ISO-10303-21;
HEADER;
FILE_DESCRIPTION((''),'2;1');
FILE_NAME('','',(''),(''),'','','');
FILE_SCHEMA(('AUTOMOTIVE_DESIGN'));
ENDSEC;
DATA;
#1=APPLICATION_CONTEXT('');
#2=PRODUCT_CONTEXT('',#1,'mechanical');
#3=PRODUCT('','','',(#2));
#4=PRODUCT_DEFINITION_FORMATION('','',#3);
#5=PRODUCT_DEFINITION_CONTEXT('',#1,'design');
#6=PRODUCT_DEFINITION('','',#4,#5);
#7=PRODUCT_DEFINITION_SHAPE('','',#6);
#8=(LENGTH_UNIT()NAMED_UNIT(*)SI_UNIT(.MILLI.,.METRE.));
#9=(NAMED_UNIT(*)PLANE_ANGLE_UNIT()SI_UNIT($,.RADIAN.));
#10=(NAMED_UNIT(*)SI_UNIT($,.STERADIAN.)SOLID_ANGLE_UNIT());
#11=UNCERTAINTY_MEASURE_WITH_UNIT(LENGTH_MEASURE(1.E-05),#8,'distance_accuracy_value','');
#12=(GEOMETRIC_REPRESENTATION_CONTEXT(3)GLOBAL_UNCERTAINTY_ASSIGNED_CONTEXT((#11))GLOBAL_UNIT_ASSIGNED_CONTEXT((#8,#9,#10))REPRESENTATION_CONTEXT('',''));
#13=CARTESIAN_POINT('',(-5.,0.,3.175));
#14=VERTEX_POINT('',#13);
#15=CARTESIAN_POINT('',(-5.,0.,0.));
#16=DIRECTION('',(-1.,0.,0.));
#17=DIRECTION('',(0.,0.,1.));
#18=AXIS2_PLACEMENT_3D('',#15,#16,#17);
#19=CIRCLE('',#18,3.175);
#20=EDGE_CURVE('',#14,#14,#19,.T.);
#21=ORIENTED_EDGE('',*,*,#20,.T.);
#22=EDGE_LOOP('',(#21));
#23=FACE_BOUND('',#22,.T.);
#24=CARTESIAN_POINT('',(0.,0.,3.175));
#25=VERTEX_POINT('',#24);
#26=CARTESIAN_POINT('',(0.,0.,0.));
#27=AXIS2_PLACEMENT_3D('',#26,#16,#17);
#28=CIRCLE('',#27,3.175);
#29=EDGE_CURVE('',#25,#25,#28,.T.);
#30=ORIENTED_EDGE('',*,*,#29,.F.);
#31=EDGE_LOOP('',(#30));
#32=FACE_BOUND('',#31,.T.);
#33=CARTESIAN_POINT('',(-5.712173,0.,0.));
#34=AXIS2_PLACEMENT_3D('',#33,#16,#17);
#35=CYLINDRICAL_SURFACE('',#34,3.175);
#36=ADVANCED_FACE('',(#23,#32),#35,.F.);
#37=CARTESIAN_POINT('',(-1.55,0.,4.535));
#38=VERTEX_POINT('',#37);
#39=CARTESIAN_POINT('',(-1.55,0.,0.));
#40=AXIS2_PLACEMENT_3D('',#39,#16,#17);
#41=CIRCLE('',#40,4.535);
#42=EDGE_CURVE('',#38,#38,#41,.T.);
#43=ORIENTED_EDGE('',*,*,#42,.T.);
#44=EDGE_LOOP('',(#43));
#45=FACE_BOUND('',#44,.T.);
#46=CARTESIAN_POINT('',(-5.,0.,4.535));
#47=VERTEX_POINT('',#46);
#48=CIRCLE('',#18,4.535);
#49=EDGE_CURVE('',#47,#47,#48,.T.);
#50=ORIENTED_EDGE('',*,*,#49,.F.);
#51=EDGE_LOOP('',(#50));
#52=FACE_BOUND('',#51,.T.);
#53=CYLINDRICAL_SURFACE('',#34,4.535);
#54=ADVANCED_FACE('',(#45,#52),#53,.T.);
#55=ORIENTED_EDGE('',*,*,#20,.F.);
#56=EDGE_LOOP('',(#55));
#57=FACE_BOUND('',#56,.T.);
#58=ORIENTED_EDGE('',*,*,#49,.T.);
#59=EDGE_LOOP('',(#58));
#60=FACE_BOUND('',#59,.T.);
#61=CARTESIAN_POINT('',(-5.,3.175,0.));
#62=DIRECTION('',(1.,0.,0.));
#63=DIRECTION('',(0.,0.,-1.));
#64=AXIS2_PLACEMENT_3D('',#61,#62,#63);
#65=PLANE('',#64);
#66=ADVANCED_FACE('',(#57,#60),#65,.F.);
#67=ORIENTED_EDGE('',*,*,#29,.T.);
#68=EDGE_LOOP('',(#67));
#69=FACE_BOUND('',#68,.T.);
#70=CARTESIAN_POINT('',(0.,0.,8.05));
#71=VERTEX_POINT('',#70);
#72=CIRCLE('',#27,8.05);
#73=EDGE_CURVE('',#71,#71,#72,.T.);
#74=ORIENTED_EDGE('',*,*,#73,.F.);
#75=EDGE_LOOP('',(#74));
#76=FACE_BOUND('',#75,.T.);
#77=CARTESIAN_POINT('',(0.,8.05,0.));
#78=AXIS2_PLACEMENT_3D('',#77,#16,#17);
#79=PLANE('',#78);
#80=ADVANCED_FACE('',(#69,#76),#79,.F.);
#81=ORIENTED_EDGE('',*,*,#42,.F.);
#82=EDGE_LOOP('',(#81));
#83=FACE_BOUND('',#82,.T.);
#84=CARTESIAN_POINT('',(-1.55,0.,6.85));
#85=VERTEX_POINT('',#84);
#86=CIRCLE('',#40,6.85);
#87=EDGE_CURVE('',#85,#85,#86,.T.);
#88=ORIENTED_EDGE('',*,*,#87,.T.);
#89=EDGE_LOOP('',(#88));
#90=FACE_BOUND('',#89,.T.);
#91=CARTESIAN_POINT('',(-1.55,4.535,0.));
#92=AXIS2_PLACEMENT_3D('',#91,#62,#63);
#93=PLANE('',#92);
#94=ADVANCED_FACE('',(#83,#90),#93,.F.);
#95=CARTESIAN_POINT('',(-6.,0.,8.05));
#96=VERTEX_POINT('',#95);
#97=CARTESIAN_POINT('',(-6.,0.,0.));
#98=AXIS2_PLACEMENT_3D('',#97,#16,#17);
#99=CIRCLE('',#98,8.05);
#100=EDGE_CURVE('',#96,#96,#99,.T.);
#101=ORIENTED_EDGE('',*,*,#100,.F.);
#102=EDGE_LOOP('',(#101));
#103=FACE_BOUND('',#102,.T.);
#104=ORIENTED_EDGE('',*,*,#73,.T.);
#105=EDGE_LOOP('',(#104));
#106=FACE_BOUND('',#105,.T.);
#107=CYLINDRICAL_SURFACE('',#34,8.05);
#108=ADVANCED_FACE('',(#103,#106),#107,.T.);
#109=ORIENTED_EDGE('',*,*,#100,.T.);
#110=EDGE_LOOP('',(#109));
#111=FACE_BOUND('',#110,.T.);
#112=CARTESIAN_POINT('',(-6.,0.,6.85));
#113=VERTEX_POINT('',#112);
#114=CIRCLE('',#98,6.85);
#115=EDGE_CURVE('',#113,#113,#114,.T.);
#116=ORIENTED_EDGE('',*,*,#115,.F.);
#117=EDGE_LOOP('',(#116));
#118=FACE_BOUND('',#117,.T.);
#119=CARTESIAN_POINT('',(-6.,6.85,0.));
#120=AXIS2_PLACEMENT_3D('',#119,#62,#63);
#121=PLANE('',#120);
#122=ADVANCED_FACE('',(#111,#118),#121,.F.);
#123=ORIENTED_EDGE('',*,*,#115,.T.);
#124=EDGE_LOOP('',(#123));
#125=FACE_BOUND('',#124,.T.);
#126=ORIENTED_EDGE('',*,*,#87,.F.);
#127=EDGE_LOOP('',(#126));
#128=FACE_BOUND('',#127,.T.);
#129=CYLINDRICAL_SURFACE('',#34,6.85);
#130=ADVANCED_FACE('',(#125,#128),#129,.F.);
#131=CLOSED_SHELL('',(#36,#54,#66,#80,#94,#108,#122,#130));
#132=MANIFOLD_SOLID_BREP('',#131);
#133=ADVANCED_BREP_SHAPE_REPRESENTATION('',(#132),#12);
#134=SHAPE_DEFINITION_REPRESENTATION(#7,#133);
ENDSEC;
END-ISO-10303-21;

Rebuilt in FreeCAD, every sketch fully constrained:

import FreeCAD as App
import Part
import Sketcher
Q = App.Units.Quantity


def add_polygon(sketch, points):
    """Adds a closed chain of lines whose ends are joined by coincident constraints."""
    first, n = sketch.GeometryCount, len(points)
    for a, b in zip(points, points[1:] + points[:1]):
        sketch.addGeometry(Part.LineSegment(App.Vector(*a, 0), App.Vector(*b, 0)), False)
    for i in range(n):
        sketch.addConstraint(Sketcher.Constraint("Coincident", first + i, 2, first + (i + 1) % n, 1))

doc = App.newDocument("Part")
body = doc.addObject("PartDesign::Body", "Body")

sketch1 = doc.addObject("Sketcher::SketchObject", "Sketch")
body.addObject(sketch1)
sketch1.AttachmentSupport = (doc.XY_Plane, [""])
sketch1.MapMode = "FlatFace"
add_polygon(sketch1, [(0, 8.05), (-6, 8.05), (-6, 6.85), (-1.55, 6.85), (-1.55, 4.535), (-5, 4.535), (-5, 3.175), (0, 3.175)])
sketch1.addConstraint(Sketcher.Constraint("Horizontal", 0))
sketch1.addConstraint(Sketcher.Constraint("Vertical", 1))
sketch1.addConstraint(Sketcher.Constraint("Horizontal", 2))
sketch1.addConstraint(Sketcher.Constraint("Vertical", 3))
sketch1.addConstraint(Sketcher.Constraint("Horizontal", 4))
sketch1.addConstraint(Sketcher.Constraint("Vertical", 5))
sketch1.addConstraint(Sketcher.Constraint("Horizontal", 6))
sketch1.addConstraint(Sketcher.Constraint("Vertical", 7))
sketch1.addConstraint(Sketcher.Constraint("PointOnObject", 6, 2, -2))
sketch1.addConstraint(Sketcher.Constraint("DistanceX", 0, 2, 0, 1, Q("6 mm")))
sketch1.addConstraint(Sketcher.Constraint("DistanceX", 6, 1, 6, 2, Q("5 mm")))
sketch1.addConstraint(Sketcher.Constraint("DistanceY", 1, 2, 1, 1, Q("1.2 mm")))
sketch1.addConstraint(Sketcher.Constraint("DistanceX", 2, 1, 2, 2, Q("4.45 mm")))
sketch1.addConstraint(Sketcher.Constraint("DistanceY", 5, 2, 5, 1, Q("1.36 mm")))
sketch1.addConstraint(Sketcher.Constraint("DistanceY", 3, 2, 3, 1, Q("2.315 mm")))
sketch1.addConstraint(Sketcher.Constraint("DistanceY", -1, 1, 0, 2, Q("8.05 mm")))
revolution = doc.addObject("PartDesign::Revolution", "Revolution")
body.addObject(revolution)
revolution.Profile = sketch1
revolution.ReferenceAxis = (sketch1, ["H_Axis"])
revolution.Angle = 360

doc.recompute()
